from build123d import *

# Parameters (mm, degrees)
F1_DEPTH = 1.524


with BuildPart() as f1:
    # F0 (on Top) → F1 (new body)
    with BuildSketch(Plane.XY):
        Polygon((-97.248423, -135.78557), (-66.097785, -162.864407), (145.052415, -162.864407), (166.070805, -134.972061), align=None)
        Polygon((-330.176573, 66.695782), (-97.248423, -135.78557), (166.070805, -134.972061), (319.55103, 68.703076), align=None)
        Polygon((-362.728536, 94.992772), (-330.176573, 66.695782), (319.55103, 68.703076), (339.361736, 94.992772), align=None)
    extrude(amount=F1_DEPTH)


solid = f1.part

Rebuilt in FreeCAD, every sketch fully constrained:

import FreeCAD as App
import Part
import Sketcher

V = App.Vector
Q = App.Units.Quantity


def add_polygon(sketch, points):
    """Adds a closed chain of lines whose ends are joined by coincident constraints."""
    first, n = sketch.GeometryCount, len(points)
    for a, b in zip(points, points[1:] + points[:1]):
        sketch.addGeometry(Part.LineSegment(App.Vector(*a, 0), App.Vector(*b, 0)), False)
    for i in range(n):
        sketch.addConstraint(Sketcher.Constraint("Coincident", first + i, 2, first + (i + 1) % n, 1))

doc = App.newDocument("Part")
body = doc.addObject("PartDesign::Body", "Body")

# Sketch on XY plane
sketch1 = doc.addObject("Sketcher::SketchObject", "Sketch")
body.addObject(sketch1)
sketch1.AttachmentSupport = (doc.XY_Plane, [""])
sketch1.MapMode = "FlatFace"
add_polygon(sketch1, [(-97, -136), (-66, -163), (145, -163), (166, -135), (320, 69), (339, 95), (-363, 95), (-330, 67)])  # lines 0-7
sketch1.addConstraint(Sketcher.Constraint("Horizontal", 1))
sketch1.addConstraint(Sketcher.Constraint("Horizontal", 5))
sketch1.addConstraint(Sketcher.Constraint("Parallel", 2, 3))
sketch1.addConstraint(Sketcher.Constraint("Parallel", 3, 4))
sketch1.addConstraint(Sketcher.Constraint("Parallel", 0, 6))
sketch1.addConstraint(Sketcher.Constraint("Parallel", 6, 7))
sketch1.addConstraint(Sketcher.Constraint("Angle", 0, Q("-41.000001 deg")))
sketch1.addConstraint(Sketcher.Constraint("Angle", 2, Q("53 deg")))
sketch1.addConstraint(Sketcher.Constraint("DistanceX", 1, 1, 1, 2, Q("8.313 in")))
sketch1.addConstraint(Sketcher.Constraint("Distance", 0, Q("1.625 in")))
sketch1.addConstraint(Sketcher.Constraint("Distance", 2, Q("1.375 in")))
sketch1.addConstraint(Sketcher.Constraint("DistanceX", 5, 2, 5, 1, Q("702.090272 mm")))
sketch1.addConstraint(Sketcher.Constraint("DistanceY", 2, 2, -1, 1, Q("134.972061 mm")))
sketch1.addConstraint(Sketcher.Constraint("DistanceX", -1, 1, 3, 2, Q("319.55103 mm")))
sketch1.addConstraint(Sketcher.Constraint("DistanceY", -1, 1, 6, 2, Q("66.695782 mm")))
sketch1.addConstraint(Sketcher.Constraint("Distance", 3, Q("255.028902 mm")))
pad1 = doc.addObject("PartDesign::Pad", "Pad")
body.addObject(pad1)
pad1.Profile = sketch1
pad1.Length = Q("0.06 in")

doc.recompute()
